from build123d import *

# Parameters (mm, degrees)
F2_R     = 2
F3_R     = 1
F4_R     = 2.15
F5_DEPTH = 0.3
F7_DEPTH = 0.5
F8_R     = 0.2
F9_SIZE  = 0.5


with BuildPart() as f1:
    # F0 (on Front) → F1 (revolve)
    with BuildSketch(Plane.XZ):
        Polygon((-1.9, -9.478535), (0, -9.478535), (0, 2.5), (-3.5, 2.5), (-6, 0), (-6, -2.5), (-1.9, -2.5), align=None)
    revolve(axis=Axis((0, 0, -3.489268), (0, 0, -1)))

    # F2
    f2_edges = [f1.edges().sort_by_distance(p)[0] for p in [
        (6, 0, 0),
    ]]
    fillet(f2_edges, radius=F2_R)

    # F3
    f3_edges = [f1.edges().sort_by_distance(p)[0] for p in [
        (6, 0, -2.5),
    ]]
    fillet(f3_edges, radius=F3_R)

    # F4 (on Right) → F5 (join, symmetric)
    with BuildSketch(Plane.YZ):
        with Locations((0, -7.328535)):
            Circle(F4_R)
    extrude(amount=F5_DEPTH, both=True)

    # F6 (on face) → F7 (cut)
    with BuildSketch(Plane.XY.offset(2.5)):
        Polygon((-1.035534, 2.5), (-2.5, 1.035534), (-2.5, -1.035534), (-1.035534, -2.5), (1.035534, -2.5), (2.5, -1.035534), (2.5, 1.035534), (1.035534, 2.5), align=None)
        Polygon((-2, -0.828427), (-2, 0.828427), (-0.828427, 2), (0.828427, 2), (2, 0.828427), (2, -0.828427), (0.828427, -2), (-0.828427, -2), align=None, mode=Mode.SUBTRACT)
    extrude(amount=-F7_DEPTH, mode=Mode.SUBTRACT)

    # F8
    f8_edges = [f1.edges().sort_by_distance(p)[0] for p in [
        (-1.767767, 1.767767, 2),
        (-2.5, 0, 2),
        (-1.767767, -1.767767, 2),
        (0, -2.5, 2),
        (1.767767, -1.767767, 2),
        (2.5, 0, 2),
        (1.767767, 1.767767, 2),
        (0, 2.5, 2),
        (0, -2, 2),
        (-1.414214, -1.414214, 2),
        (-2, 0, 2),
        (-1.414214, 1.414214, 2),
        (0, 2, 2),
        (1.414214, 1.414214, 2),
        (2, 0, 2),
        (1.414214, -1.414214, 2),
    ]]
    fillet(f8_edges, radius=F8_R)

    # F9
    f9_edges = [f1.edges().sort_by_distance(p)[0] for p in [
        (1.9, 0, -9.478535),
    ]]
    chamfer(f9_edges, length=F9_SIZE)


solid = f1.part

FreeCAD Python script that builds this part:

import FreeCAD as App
import Part
import Sketcher
Q = App.Units.Quantity


def edges_at(feature, points):
    """Names of the edges that pass closest to the given points."""
    edges = feature.Shape.Edges
    near = lambda p: min(range(len(edges)), key=lambda i: edges[i].distToShape(Part.Vertex(*p))[0])
    return sorted({f"Edge{near(p) + 1}" for p in points})


def add_polygon(sketch, points):
    """Adds a closed chain of lines whose ends are joined by coincident constraints."""
    first, n = sketch.GeometryCount, len(points)
    for a, b in zip(points, points[1:] + points[:1]):
        sketch.addGeometry(Part.LineSegment(App.Vector(*a, 0), App.Vector(*b, 0)), False)
    for i in range(n):
        sketch.addConstraint(Sketcher.Constraint("Coincident", first + i, 2, first + (i + 1) % n, 1))

doc = App.newDocument("Part")
params = doc.addObject("Spreadsheet::Sheet", "Params")
for row, (alias, value) in enumerate([
    ("sketch1_width", "1.9 mm"),
    ("sketch1_width2", "3.5 mm"),
    ("sketch1_width3", "4.1 mm"),
    ("sketch1_height", "2.5 mm"),
    ("revolution_angle", "360 deg"),
    ("fillet_radius", "2 mm"),
    ("fillet2_radius", "1 mm"),
    ("sketch2_diameter", "4.3 mm"),
    ("pad1_length", "0.6 mm"),
    ("pocket1_length", "0.5 mm"),
    ("fillet3_radius", "0.2 mm"),
    ("chamfer_size", "0.5 mm"),
], start=1):
    params.set(f"A{row}", alias)
    params.set(f"B{row}", "=" + value)
    params.setAlias(f"B{row}", alias)

body = doc.addObject("PartDesign::Body", "Body")

# Sketch on XZ plane
sketch1 = body.newObject("Sketcher::SketchObject", "Sketch")
sketch1.AttachmentSupport = (doc.getObject("XZ_Plane"), [""])
sketch1.MapMode = "FlatFace"
add_polygon(sketch1, [(-1.9, -9.5), (0, -9.5), (0, 2.5), (-3.5, 2.5), (-6, 0), (-6, -2.5), (-1.9, -2.5)])  # lines 0-6
sketch1.addConstraint(Sketcher.Constraint("Horizontal", 0))
sketch1.addConstraint(Sketcher.Constraint("Vertical", 1))
sketch1.addConstraint(Sketcher.Constraint("Horizontal", 2))
sketch1.addConstraint(Sketcher.Constraint("Vertical", 4))
sketch1.addConstraint(Sketcher.Constraint("Horizontal", 5))
sketch1.addConstraint(Sketcher.Constraint("Vertical", 6))
sketch1.addConstraint(Sketcher.Constraint("PointOnObject", 0, 2, -2))
sketch1.addConstraint(Sketcher.Constraint("PointOnObject", 3, 2, -1))
sketch1.addConstraint(Sketcher.Constraint("Angle", 3, Q("-135 deg")))
sketch1.addConstraint(Sketcher.Constraint("DistanceX", 0, 1, 0, 2, Q("1.9 mm")))
sketch1.addConstraint(Sketcher.Constraint("DistanceX", 2, 2, 2, 1, Q("3.5 mm")))
sketch1.addConstraint(Sketcher.Constraint("DistanceX", 5, 1, 5, 2, Q("4.1 mm")))
sketch1.addConstraint(Sketcher.Constraint("DistanceY", 4, 2, 4, 1, Q("2.5 mm")))
sketch1.addConstraint(Sketcher.Constraint("DistanceY", 1, 1, 1, 2, Q("11.978535 mm")))
sketch1.setExpression("Constraints[16]", "Params.sketch1_width")
sketch1.setExpression("Constraints[17]", "Params.sketch1_width2")
sketch1.setExpression("Constraints[18]", "Params.sketch1_width3")
sketch1.setExpression("Constraints[19]", "Params.sketch1_height")
revolution = body.newObject("PartDesign::Revolution", "Revolution")
revolution.Profile = sketch1
revolution.ReferenceAxis = (sketch1, ["V_Axis"])
revolution.setExpression("Angle", "Params.revolution_angle")
doc.recompute()

fillet = body.newObject("PartDesign::Fillet", "Fillet")
fillet.Base = (revolution, edges_at(revolution, [(6, 0, 0)]))
fillet.setExpression("Radius", "Params.fillet_radius")
doc.recompute()

fillet2 = body.newObject("PartDesign::Fillet", "Fillet001")
fillet2.Base = (fillet, edges_at(fillet, [(6, 0, -2.5)]))
fillet2.setExpression("Radius", "Params.fillet2_radius")

# Sketch on YZ plane
sketch2 = body.newObject("Sketcher::SketchObject", "Sketch001")
sketch2.AttachmentSupport = (doc.getObject("YZ_Plane"), [""])
sketch2.MapMode = "FlatFace"
sketch2.addGeometry(Part.Circle(App.Vector(0, -7.3, 0), App.Vector(0, 0, 1), 2.1), False)
sketch2.addConstraint(Sketcher.Constraint("PointOnObject", 0, 3, -2))
sketch2.addConstraint(Sketcher.Constraint("Diameter", 0, Q("4.3 mm")))
sketch2.addConstraint(Sketcher.Constraint("DistanceY", 0, 3, -1, 1, Q("7.328535 mm")))
sketch2.setExpression("Constraints[1]", "Params.sketch2_diameter")
pad1 = body.newObject("PartDesign::Pad", "Pad")
pad1.Profile = sketch2
pad1.setExpression("Length", "Params.pad1_length")
pad1.Midplane = True

# Sketch on XY plane
sketch3 = body.newObject("Sketcher::SketchObject", "Sketch002")
sketch3.AttachmentSupport = (doc.getObject("XY_Plane"), [""])
sketch3.MapMode = "FlatFace"
sketch3.AttachmentOffset = App.Placement(App.Vector(0, 0, 2.5), App.Rotation())
add_polygon(sketch3, [(-1, 2.5), (-2.5, 1), (-2.5, -1), (-1, -2.5), (1, -2.5), (2.5, -1), (2.5, 1), (1, 2.5)])  # lines 0-7
add_polygon(sketch3, [(-0.8, -2), (-2, -0.8), (-2, 0.8), (-0.8, 2), (0.8, 2), (2, 0.8), (2, -0.8), (0.8, -2)])  # lines 8-15
sketch3.addConstraint(Sketcher.Constraint("Vertical", 1))
sketch3.addConstraint(Sketcher.Constraint("Horizontal", 3))
sketch3.addConstraint(Sketcher.Constraint("Vertical", 5))
sketch3.addConstraint(Sketcher.Constraint("Horizontal", 7))
sketch3.addConstraint(Sketcher.Constraint("Vertical", 9))
sketch3.addConstraint(Sketcher.Constraint("Horizontal", 11))
sketch3.addConstraint(Sketcher.Constraint("Vertical", 13))
sketch3.addConstraint(Sketcher.Constraint("Horizontal", 15))
sketch3.addConstraint(Sketcher.Constraint("Symmetric", 0, 2, 4, 2, -1, 1))
sketch3.addConstraint(Sketcher.Constraint("Symmetric", 2, 2, 6, 2, -1, 1))
sketch3.addConstraint(Sketcher.Constraint("Symmetric", 8, 2, 12, 2, -1, 1))
sketch3.addConstraint(Sketcher.Constraint("Symmetric", 10, 2, 14, 2, -1, 1))
sketch3.addConstraint(Sketcher.Constraint("Perpendicular", 0, 2))
sketch3.addConstraint(Sketcher.Constraint("Perpendicular", 2, 4))
sketch3.addConstraint(Sketcher.Constraint("Perpendicular", 4, 6))
sketch3.addConstraint(Sketcher.Constraint("Parallel", 6, 8))
sketch3.addConstraint(Sketcher.Constraint("Perpendicular", 8, 10))
sketch3.addConstraint(Sketcher.Constraint("Perpendicular", 10, 12))
sketch3.addConstraint(Sketcher.Constraint("Perpendicular", 12, 14))
sketch3.addConstraint(Sketcher.Constraint("Horizontal", 1, 2, 4, 2))
sketch3.addConstraint(Sketcher.Constraint("Horizontal", 9, 2, 12, 2))
sketch3.addConstraint(Sketcher.Constraint("Vertical", 3, 2, 6, 2))
sketch3.addConstraint(Sketcher.Constraint("Equal", 7, 1))
sketch3.addConstraint(Sketcher.Constraint("Equal", 15, 9))
sketch3.addConstraint(Sketcher.Constraint("DistanceX", 8, 2, -1, 1, Q("2 mm")))
sketch3.addConstraint(Sketcher.Constraint("DistanceX", 1, 2, 4, 2, Q("5 mm")))
sketch3.addConstraint(Sketcher.Constraint("DistanceX", 3, 1, 3, 2, Q("2.071068 mm")))
sketch3.addConstraint(Sketcher.Constraint("DistanceX", 11, 1, 11, 2, Q("1.656854 mm")))
pocket1 = body.newObject("PartDesign::Pocket", "Pocket")
pocket1.Profile = sketch3
pocket1.setExpression("Length", "Params.pocket1_length")
doc.recompute()

fillet3 = body.newObject("PartDesign::Fillet", "Fillet002")
fillet3.Base = (pocket1, edges_at(pocket1, [
    (-1.768, 1.768, 2),
    (-2.5, 0, 2),
    (-1.768, -1.768, 2),
    (0, -2.5, 2),
    (1.768, -1.768, 2),
    (2.5, 0, 2),
    (1.768, 1.768, 2),
    (0, 2.5, 2),
    (0, -2, 2),
    (-1.414, -1.414, 2),
    (-2, 0, 2),
    (-1.414, 1.414, 2),
    (0, 2, 2),
    (1.414, 1.414, 2),
    (2, 0, 2),
    (1.414, -1.414, 2),
]))
fillet3.setExpression("Radius", "Params.fillet3_radius")
doc.recompute()

chamfer = body.newObject("PartDesign::Chamfer", "Chamfer")
chamfer.Base = (fillet3, edges_at(fillet3, [(1.9, 0, -9.479)]))
chamfer.setExpression("Size", "Params.chamfer_size")

doc.recompute()
